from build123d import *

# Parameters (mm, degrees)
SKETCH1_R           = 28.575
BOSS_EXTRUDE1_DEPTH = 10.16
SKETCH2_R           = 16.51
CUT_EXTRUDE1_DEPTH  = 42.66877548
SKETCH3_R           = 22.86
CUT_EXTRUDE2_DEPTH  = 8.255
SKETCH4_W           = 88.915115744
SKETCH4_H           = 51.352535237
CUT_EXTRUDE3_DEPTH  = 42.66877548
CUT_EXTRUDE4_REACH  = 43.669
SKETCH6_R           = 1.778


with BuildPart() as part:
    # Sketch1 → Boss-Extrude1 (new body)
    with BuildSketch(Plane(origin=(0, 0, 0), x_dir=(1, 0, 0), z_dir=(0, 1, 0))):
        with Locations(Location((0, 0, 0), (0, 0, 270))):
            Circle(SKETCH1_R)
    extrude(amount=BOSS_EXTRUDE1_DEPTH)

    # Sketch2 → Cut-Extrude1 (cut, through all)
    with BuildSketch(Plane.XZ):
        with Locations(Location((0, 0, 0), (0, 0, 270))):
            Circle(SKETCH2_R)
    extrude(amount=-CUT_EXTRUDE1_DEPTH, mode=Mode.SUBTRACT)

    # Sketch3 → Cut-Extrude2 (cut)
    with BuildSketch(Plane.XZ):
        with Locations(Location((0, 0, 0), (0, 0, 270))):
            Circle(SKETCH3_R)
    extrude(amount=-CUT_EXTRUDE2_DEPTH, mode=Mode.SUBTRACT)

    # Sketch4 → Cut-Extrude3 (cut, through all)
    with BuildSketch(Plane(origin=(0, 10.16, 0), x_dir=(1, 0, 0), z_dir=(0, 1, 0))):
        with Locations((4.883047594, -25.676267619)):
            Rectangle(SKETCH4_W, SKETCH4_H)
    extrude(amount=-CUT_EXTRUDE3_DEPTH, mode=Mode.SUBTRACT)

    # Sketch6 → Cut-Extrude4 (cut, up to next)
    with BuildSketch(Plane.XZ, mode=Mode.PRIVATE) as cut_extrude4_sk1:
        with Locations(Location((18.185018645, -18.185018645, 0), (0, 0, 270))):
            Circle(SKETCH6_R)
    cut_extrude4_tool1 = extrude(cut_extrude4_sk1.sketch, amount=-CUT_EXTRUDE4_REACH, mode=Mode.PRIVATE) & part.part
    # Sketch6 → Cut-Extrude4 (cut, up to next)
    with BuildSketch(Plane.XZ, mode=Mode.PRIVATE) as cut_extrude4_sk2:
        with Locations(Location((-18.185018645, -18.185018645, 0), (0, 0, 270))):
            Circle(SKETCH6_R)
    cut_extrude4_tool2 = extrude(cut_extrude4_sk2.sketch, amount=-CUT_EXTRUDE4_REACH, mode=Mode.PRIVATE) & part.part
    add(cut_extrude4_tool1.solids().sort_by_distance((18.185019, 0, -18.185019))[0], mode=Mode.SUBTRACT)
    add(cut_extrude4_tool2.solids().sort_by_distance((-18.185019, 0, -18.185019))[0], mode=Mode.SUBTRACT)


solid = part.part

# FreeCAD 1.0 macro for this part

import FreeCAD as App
import Part
import Sketcher

V = App.Vector
Q = App.Units.Quantity


def add_polygon(sketch, points):
    """Adds a closed chain of lines whose ends are joined by coincident constraints."""
    first, n = sketch.GeometryCount, len(points)
    for a, b in zip(points, points[1:] + points[:1]):
        sketch.addGeometry(Part.LineSegment(App.Vector(*a, 0), App.Vector(*b, 0)), False)
    for i in range(n):
        sketch.addConstraint(Sketcher.Constraint("Coincident", first + i, 2, first + (i + 1) % n, 1))

doc = App.newDocument("Part")
params = doc.addObject("Spreadsheet::Sheet", "Params")
for row, (alias, value) in enumerate([
    ("sketch1_diameter", "2.25 in"),
    ("pad1_length", "0.4 in"),
    ("sketch2_diameter", "1.3 in"),
    ("sketch3_diameter", "1.8 in"),
    ("pocket2_length", "0.325 in"),
    ("sketch5_diameter", "0.14 in"),
    ("sketch6_diameter", "0.14 in"),
], start=1):
    params.set(f"A{row}", alias)
    params.set(f"B{row}", "=" + value)
    params.setAlias(f"B{row}", alias)

body = doc.addObject("PartDesign::Body", "Body")

# Sketch on XZ plane
sketch1 = body.newObject("Sketcher::SketchObject", "Sketch")
sketch1.AttachmentSupport = (doc.getObject("XZ_Plane"), [""])
sketch1.MapMode = "FlatFace"
sketch1.addGeometry(Part.Circle(V(0, 0, 0), V(0, 0, 1), 28.575), False)
sketch1.addConstraint(Sketcher.Constraint("Coincident", 0, 3, -1, 1))
sketch1.addConstraint(Sketcher.Constraint("Diameter", 0, Q("2.25 in")))
sketch1.setExpression("Constraints[1]", "Params.sketch1_diameter")
pad1 = body.newObject("PartDesign::Pad", "Pad")
pad1.Profile = sketch1
pad1.setExpression("Length", "Params.pad1_length")
pad1.Reversed = True

# Sketch on XZ plane
sketch2 = body.newObject("Sketcher::SketchObject", "Sketch001")
sketch2.AttachmentSupport = (doc.getObject("XZ_Plane"), [""])
sketch2.MapMode = "FlatFace"
sketch2.addGeometry(Part.Circle(V(0, 0, 0), V(0, 0, 1), 16.51), False)
sketch2.addConstraint(Sketcher.Constraint("Coincident", 0, 3, -1, 1))
sketch2.addConstraint(Sketcher.Constraint("Diameter", 0, Q("1.3 in")))
sketch2.setExpression("Constraints[1]", "Params.sketch2_diameter")
pocket1 = body.newObject("PartDesign::Pocket", "Pocket")
pocket1.Profile = sketch2
pocket1.Type = "ThroughAll"

# Sketch on XZ plane
sketch3 = body.newObject("Sketcher::SketchObject", "Sketch002")
sketch3.AttachmentSupport = (doc.getObject("XZ_Plane"), [""])
sketch3.MapMode = "FlatFace"
sketch3.addGeometry(Part.Circle(V(0, 0, 0), V(0, 0, 1), 22.86), False)
sketch3.addConstraint(Sketcher.Constraint("Coincident", 0, 3, -1, 1))
sketch3.addConstraint(Sketcher.Constraint("Diameter", 0, Q("1.8 in")))
sketch3.setExpression("Constraints[1]", "Params.sketch3_diameter")
pocket2 = body.newObject("PartDesign::Pocket", "Pocket001")
pocket2.Profile = sketch3
pocket2.setExpression("Length", "Params.pocket2_length")

# Sketch on XZ plane
sketch4 = body.newObject("Sketcher::SketchObject", "Sketch003")
sketch4.AttachmentSupport = (doc.getObject("XZ_Plane"), [""])
sketch4.MapMode = "FlatFace"
sketch4.AttachmentOffset = App.Placement(V(0, 0, -0.4 * 25.4), App.Rotation())
add_polygon(sketch4, [(-39.57451, 0), (-39.57451, 51.352535), (49.340605, 51.352535), (49.340605, 0)])  # lines 0-3
sketch4.addConstraint(Sketcher.Constraint("Vertical", 0))
sketch4.addConstraint(Sketcher.Constraint("Horizontal", 1))
sketch4.addConstraint(Sketcher.Constraint("Vertical", 2))
sketch4.addConstraint(Sketcher.Constraint("Horizontal", 3))
sketch4.addConstraint(Sketcher.Constraint("PointOnObject", 2, 2, -1))
sketch4.addConstraint(Sketcher.Constraint("DistanceX", 1, 1, 1, 2, 88.915116))
sketch4.addConstraint(Sketcher.Constraint("DistanceY", 0, 1, 0, 2, 51.352535))
sketch4.addConstraint(Sketcher.Constraint("DistanceX", 0, 2, -1, 1, 39.57451))
pocket3 = body.newObject("PartDesign::Pocket", "Pocket002")
pocket3.Profile = sketch4
pocket3.Type = "ThroughAll"
pocket3.Reversed = True

# Sketch on XZ plane
sketch5 = body.newObject("Sketcher::SketchObject", "Sketch004")
sketch5.AttachmentSupport = (doc.getObject("XZ_Plane"), [""])
sketch5.MapMode = "FlatFace"
sketch5.addGeometry(Part.Circle(V(18.185019, -18.185019, 0), V(0, 0, 1), 1.778), False)
sketch5.addConstraint(Sketcher.Constraint("Diameter", 0, Q("0.14 in")))
sketch5.addConstraint(Sketcher.Constraint("DistanceX", -1, 1, 0, 3, 18.185019))
sketch5.addConstraint(Sketcher.Constraint("DistanceY", 0, 3, -1, 1, 18.185019))
sketch5.setExpression("Constraints[0]", "Params.sketch5_diameter")
pocket4 = body.newObject("PartDesign::Pocket", "Pocket003")
pocket4.Profile = sketch5
pocket4.Type = "UpToFirst"

# Sketch on XZ plane
sketch6 = body.newObject("Sketcher::SketchObject", "Sketch005")
sketch6.AttachmentSupport = (doc.getObject("XZ_Plane"), [""])
sketch6.MapMode = "FlatFace"
sketch6.addGeometry(Part.Circle(V(-18.185019, -18.185019, 0), V(0, 0, 1), 1.778), False)
sketch6.addConstraint(Sketcher.Constraint("Diameter", 0, Q("0.14 in")))
sketch6.addConstraint(Sketcher.Constraint("DistanceX", 0, 3, -1, 1, 18.185019))
sketch6.addConstraint(Sketcher.Constraint("DistanceY", 0, 3, -1, 1, 18.185019))
sketch6.setExpression("Constraints[0]", "Params.sketch6_diameter")
pocket5 = body.newObject("PartDesign::Pocket", "Pocket004")
pocket5.Profile = sketch6
pocket5.Type = "UpToFirst"

doc.recompute()
